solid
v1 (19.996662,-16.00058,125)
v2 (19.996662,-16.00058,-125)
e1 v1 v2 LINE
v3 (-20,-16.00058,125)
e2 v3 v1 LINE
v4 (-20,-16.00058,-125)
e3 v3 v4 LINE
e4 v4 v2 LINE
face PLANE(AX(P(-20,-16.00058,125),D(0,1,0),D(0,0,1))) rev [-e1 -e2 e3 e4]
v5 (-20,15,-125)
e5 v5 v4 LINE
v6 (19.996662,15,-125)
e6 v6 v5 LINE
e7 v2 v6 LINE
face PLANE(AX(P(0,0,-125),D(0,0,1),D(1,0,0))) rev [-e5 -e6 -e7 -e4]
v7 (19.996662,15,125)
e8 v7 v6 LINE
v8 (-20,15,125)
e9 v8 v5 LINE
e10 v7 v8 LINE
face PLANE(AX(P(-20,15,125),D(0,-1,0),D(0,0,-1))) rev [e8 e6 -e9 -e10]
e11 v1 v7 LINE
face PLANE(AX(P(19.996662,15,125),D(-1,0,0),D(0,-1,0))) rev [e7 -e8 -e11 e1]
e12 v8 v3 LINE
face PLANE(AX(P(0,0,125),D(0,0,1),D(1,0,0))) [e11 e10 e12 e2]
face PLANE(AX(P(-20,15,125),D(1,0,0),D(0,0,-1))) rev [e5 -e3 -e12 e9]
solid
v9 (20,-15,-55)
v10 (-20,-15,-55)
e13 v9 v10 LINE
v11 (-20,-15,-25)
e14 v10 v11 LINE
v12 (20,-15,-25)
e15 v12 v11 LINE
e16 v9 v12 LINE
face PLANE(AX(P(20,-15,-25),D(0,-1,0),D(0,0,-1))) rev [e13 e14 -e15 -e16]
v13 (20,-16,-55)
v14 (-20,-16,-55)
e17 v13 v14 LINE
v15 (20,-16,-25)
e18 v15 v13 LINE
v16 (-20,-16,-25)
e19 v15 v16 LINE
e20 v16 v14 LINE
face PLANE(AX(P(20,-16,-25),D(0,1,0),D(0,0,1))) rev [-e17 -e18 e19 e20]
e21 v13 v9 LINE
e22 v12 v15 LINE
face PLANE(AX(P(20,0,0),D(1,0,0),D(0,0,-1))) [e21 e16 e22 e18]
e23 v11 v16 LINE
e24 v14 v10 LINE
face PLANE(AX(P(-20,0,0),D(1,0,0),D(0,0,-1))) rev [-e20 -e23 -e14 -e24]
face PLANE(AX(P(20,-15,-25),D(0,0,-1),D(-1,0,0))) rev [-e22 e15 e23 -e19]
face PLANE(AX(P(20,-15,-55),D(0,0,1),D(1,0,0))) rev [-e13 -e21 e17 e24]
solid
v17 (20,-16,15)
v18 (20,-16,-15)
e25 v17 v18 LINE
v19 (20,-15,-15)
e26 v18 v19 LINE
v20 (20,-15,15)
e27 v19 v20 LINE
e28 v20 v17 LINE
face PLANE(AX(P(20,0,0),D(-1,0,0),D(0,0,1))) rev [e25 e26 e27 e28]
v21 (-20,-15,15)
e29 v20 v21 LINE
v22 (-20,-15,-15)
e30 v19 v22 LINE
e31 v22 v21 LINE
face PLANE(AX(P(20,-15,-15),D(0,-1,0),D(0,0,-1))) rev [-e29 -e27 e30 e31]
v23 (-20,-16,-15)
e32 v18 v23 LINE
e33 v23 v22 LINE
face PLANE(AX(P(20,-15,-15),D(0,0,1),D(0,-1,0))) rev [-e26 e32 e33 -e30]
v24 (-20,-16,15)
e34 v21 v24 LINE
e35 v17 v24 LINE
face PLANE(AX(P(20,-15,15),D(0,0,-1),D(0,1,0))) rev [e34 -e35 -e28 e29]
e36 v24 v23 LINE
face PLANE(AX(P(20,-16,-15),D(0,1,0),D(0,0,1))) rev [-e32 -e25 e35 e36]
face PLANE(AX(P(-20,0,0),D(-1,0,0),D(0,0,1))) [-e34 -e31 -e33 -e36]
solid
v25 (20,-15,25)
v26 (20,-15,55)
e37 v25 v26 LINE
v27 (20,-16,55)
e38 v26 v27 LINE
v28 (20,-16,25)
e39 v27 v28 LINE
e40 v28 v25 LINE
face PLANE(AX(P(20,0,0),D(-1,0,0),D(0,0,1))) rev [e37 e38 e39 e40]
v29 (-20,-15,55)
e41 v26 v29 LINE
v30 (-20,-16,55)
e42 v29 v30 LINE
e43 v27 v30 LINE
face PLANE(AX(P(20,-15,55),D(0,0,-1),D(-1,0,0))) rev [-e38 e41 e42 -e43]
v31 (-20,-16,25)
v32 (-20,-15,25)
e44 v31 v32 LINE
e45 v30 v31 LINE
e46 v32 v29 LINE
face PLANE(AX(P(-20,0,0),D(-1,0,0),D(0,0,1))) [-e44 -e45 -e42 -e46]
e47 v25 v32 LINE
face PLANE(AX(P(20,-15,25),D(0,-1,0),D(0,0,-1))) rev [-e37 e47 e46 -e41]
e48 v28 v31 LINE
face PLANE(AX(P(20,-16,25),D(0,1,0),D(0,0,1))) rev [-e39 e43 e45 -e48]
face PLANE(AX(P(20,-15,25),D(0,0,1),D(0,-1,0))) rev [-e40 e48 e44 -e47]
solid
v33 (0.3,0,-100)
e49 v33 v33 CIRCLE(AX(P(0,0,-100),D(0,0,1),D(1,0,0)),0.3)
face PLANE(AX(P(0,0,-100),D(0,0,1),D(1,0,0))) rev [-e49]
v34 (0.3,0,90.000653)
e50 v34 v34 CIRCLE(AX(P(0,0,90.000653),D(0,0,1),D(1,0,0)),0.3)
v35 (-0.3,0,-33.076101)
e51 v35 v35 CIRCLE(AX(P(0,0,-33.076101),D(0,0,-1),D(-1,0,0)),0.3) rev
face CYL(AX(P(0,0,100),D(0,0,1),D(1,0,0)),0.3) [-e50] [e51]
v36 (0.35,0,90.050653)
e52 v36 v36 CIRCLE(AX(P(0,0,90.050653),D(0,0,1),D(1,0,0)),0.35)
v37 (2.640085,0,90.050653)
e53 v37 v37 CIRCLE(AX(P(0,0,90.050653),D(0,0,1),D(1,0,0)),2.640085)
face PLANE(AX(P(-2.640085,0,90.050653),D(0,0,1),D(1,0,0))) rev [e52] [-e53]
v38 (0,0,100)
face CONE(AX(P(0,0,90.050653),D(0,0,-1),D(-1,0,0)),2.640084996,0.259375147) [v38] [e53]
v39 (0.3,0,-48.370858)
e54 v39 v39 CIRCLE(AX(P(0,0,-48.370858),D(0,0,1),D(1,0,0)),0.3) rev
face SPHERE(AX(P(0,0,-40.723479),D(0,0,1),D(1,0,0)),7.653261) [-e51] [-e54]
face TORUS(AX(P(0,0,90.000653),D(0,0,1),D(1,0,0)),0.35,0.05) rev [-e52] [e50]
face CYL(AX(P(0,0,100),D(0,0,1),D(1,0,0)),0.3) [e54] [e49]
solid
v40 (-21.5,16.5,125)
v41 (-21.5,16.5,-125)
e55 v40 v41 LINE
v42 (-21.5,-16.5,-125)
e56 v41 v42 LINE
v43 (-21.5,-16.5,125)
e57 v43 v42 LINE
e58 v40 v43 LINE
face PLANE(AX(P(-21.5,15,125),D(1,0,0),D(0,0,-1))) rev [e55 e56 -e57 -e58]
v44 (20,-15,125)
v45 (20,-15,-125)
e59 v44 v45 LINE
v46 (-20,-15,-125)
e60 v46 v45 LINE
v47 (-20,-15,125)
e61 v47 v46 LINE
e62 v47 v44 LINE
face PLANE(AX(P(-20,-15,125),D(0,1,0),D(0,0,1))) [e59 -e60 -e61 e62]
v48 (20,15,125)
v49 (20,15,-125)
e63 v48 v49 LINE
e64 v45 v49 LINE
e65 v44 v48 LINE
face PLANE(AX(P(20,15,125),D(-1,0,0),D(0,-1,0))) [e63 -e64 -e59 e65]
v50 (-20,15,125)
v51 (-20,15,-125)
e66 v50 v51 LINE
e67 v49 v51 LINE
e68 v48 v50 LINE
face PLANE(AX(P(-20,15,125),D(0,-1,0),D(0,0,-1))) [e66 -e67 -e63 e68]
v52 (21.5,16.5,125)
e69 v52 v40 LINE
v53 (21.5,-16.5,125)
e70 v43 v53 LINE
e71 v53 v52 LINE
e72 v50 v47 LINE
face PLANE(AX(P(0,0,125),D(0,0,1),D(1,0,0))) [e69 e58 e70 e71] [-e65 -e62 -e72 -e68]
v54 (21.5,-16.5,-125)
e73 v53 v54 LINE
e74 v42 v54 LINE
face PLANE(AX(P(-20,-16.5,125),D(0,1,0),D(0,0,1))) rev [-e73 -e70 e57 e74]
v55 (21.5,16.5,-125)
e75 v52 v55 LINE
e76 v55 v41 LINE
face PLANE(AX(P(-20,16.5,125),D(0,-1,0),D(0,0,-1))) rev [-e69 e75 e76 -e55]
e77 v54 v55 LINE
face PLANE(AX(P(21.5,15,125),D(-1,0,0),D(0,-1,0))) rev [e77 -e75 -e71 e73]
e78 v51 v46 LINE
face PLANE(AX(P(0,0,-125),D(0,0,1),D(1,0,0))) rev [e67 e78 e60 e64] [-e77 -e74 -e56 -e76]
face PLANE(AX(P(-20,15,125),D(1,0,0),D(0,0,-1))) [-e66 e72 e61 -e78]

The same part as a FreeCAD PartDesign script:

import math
import FreeCAD as App
import Part
import Sketcher
from FreeCAD import Vector
Q = App.Units.Quantity

doc = App.newDocument("Part")
body = doc.addObject("PartDesign::Body", "Body")

sketch1 = body.newObject("Sketcher::SketchObject", "Sketch")
sketch1.AttachmentSupport = (doc.getObject("XY_Plane"), [""])
sketch1.MapMode = "FlatFace"
sketch1.addGeometry([
    Part.LineSegment(Vector(-21.5, 16.5, 0), Vector(-21.5, -16.5, 0)),
    Part.LineSegment(Vector(-21.5, -16.5, 0), Vector(21.5, -16.5, 0)),
    Part.LineSegment(Vector(21.5, -16.5, 0), Vector(21.5, 16.5, 0)),
    Part.LineSegment(Vector(21.5, 16.5, 0), Vector(-21.5, 16.5, 0)),
    Part.LineSegment(Vector(20, -15, 0), Vector(-20, -15, 0)),
    Part.LineSegment(Vector(-20, -15, 0), Vector(-20, 15, 0)),
    Part.LineSegment(Vector(-20, 15, 0), Vector(20, 15, 0)),
    Part.LineSegment(Vector(20, 15, 0), Vector(20, -15, 0)),
], False)
sketch1.addConstraint([
    Sketcher.Constraint("Coincident", 0, 2, 1, 1),
    Sketcher.Constraint("Coincident", 1, 2, 2, 1),
    Sketcher.Constraint("Coincident", 2, 2, 3, 1),
    Sketcher.Constraint("Coincident", 3, 2, 0, 1),
    Sketcher.Constraint("Coincident", 4, 2, 5, 1),
    Sketcher.Constraint("Coincident", 5, 2, 6, 1),
    Sketcher.Constraint("Coincident", 6, 2, 7, 1),
    Sketcher.Constraint("Coincident", 7, 2, 4, 1),
    Sketcher.Constraint("Vertical", 0),
    Sketcher.Constraint("Horizontal", 1),
    Sketcher.Constraint("Vertical", 2),
    Sketcher.Constraint("Horizontal", 3),
    Sketcher.Constraint("Horizontal", 4),
    Sketcher.Constraint("Vertical", 5),
    Sketcher.Constraint("Horizontal", 6),
    Sketcher.Constraint("Vertical", 7),
    Sketcher.Constraint("Symmetric", 0, 2, 2, 2, -1, 1),
    Sketcher.Constraint("Symmetric", 4, 2, 6, 2, -1, 1),
    Sketcher.Constraint("DistanceX", 1, 1, 1, 2, Q("43 mm")),
    Sketcher.Constraint("DistanceX", 4, 2, 4, 1, Q("40 mm")),
    Sketcher.Constraint("DistanceY", 0, 2, 0, 1, Q("33 mm")),
    Sketcher.Constraint("DistanceY", 5, 1, 5, 2, Q("30 mm")),
])
pad1 = body.newObject("PartDesign::Pad", "Pad")
pad1.Profile = sketch1
pad1.Length = 250
pad1.Midplane = True
body2 = doc.addObject("PartDesign::Body", "Body001")

sketch2 = body2.newObject("Sketcher::SketchObject", "Sketch001")
sketch2.AttachmentSupport = (doc.getObject("YZ_Plane001"), [""])
sketch2.MapMode = "FlatFace"
sketch2.addGeometry([
    Part.LineSegment(Vector(-15, 15, 0), Vector(-16, 15, 0)),
    Part.LineSegment(Vector(-16, 15, 0), Vector(-16, -15, 0)),
    Part.LineSegment(Vector(-16, -15, 0), Vector(-15, -15, 0)),
    Part.LineSegment(Vector(-15, -15, 0), Vector(-15, 15, 0)),
], False)
sketch2.addConstraint([
    Sketcher.Constraint("Coincident", 0, 2, 1, 1),
    Sketcher.Constraint("Coincident", 1, 2, 2, 1),
    Sketcher.Constraint("Coincident", 2, 2, 3, 1),
    Sketcher.Constraint("Coincident", 3, 2, 0, 1),
    Sketcher.Constraint("Horizontal", 0),
    Sketcher.Constraint("Vertical", 1),
    Sketcher.Constraint("Horizontal", 2),
    Sketcher.Constraint("Vertical", 3),
    Sketcher.Constraint("DistanceX", 0, 2, 0, 1, Q("1 mm")),
    Sketcher.Constraint("DistanceY", 1, 2, 1, 1, Q("30 mm")),
    Sketcher.Constraint("DistanceX", 0, 2, -1, 1, Q("16 mm")),
    Sketcher.Constraint("DistanceY", -1, 1, 0, 2, Q("15 mm")),
])
pad2 = body2.newObject("PartDesign::Pad", "Pad001")
pad2.Profile = sketch2
pad2.Length = 40
pad2.Midplane = True
body3 = doc.addObject("PartDesign::Body", "Body002")

sketch3 = body3.newObject("Sketcher::SketchObject", "Sketch002")
sketch3.AttachmentSupport = (doc.getObject("YZ_Plane002"), [""])
sketch3.MapMode = "FlatFace"
sketch3.addGeometry([
    Part.LineSegment(Vector(-15, 55, 0), Vector(-16, 55, 0)),
    Part.LineSegment(Vector(-16, 55, 0), Vector(-16, 25, 0)),
    Part.LineSegment(Vector(-16, 25, 0), Vector(-15, 25, 0)),
    Part.LineSegment(Vector(-15, 25, 0), Vector(-15, 55, 0)),
], False)
sketch3.addConstraint([
    Sketcher.Constraint("Coincident", 0, 2, 1, 1),
    Sketcher.Constraint("Coincident", 1, 2, 2, 1),
    Sketcher.Constraint("Coincident", 2, 2, 3, 1),
    Sketcher.Constraint("Coincident", 3, 2, 0, 1),
    Sketcher.Constraint("Horizontal", 0),
    Sketcher.Constraint("Vertical", 1),
    Sketcher.Constraint("Horizontal", 2),
    Sketcher.Constraint("Vertical", 3),
    Sketcher.Constraint("DistanceX", 0, 2, 0, 1, Q("1 mm")),
    Sketcher.Constraint("DistanceY", 1, 2, 1, 1, Q("30 mm")),
    Sketcher.Constraint("DistanceX", 0, 2, -1, 1, Q("16 mm")),
    Sketcher.Constraint("DistanceY", -1, 1, 0, 2, Q("55 mm")),
])
pad3 = body3.newObject("PartDesign::Pad", "Pad002")
pad3.Profile = sketch3
pad3.Length = 40
pad3.Midplane = True
body4 = doc.addObject("PartDesign::Body", "Body003")

sketch4 = body4.newObject("Sketcher::SketchObject", "Sketch003")
sketch4.AttachmentSupport = (doc.getObject("YZ_Plane003"), [""])
sketch4.MapMode = "FlatFace"
sketch4.addGeometry([
    Part.LineSegment(Vector(-15, -25, 0), Vector(-16, -25, 0)),
    Part.LineSegment(Vector(-16, -25, 0), Vector(-16, -55, 0)),
    Part.LineSegment(Vector(-16, -55, 0), Vector(-15, -55, 0)),
    Part.LineSegment(Vector(-15, -55, 0), Vector(-15, -25, 0)),
], False)
sketch4.addConstraint([
    Sketcher.Constraint("Coincident", 0, 2, 1, 1),
    Sketcher.Constraint("Coincident", 1, 2, 2, 1),
    Sketcher.Constraint("Coincident", 2, 2, 3, 1),
    Sketcher.Constraint("Coincident", 3, 2, 0, 1),
    Sketcher.Constraint("Horizontal", 0),
    Sketcher.Constraint("Vertical", 1),
    Sketcher.Constraint("Horizontal", 2),
    Sketcher.Constraint("Vertical", 3),
    Sketcher.Constraint("DistanceX", 0, 2, 0, 1, Q("1 mm")),
    Sketcher.Constraint("DistanceY", 1, 2, 1, 1, Q("30 mm")),
    Sketcher.Constraint("DistanceX", 0, 2, -1, 1, Q("16 mm")),
    Sketcher.Constraint("DistanceY", 0, 2, -1, 1, Q("25 mm")),
])
pad4 = body4.newObject("PartDesign::Pad", "Pad003")
pad4.Profile = sketch4
pad4.Length = 40
pad4.Midplane = True
body5 = doc.addObject("PartDesign::Body", "Body004")

sketch5 = body5.newObject("Sketcher::SketchObject", "Sketch004")
sketch5.AttachmentSupport = (doc.getObject("XZ_Plane004"), [""])
sketch5.MapMode = "FlatFace"
sketch5.addGeometry([
    Part.LineSegment(Vector(-7.653261, -40.723479, 0), Vector(7.653261, -40.723479, 0)),
    Part.ArcOfCircle(Part.Circle(Vector(0, -40.723479, 0), Vector(0, 0, 1), 7.653261), math.radians(180), math.radians(360)),
], False)
sketch5.addGeometry(Part.LineSegment(Vector(-7.653261, -40.723479, 0), Vector(7.653261, -40.723479, 0)), True)
sketch5.addConstraint([
    Sketcher.Constraint("Coincident", 0, 1, 1, 1),
    Sketcher.Constraint("Coincident", 1, 2, 0, 2),
    Sketcher.Constraint("Horizontal", 0),
    Sketcher.Constraint("Horizontal", 2),
    Sketcher.Constraint("Coincident", 2, 1, 0, 1),
    Sketcher.Constraint("PointOnObject", 1, 3, -2),
    Sketcher.Constraint("Horizontal", 1, 3, 0, 1),
    Sketcher.Constraint("Equal", 0, 2),
    Sketcher.Constraint("Radius", 1, Q("7.653261 mm")),
    Sketcher.Constraint("DistanceY", 1, 3, -1, 1, Q("40.723479 mm")),
])
revolution = body5.newObject("PartDesign::Revolution", "Revolution")
revolution.Profile = sketch5
revolution.ReferenceAxis = (sketch5, ["Axis0"])
revolution.Angle = 360

sketch6 = body5.newObject("Sketcher::SketchObject", "Sketch005")
sketch6.AttachmentSupport = (doc.getObject("XZ_Plane004"), [""])
sketch6.MapMode = "FlatFace"
sketch6.addGeometry([
    Part.LineSegment(Vector(-2.640085, 90.050653, 0), Vector(0, 100, 0)),
    Part.LineSegment(Vector(0, 100, 0), Vector(0, -100, 0)),
    Part.LineSegment(Vector(0, -100, 0), Vector(-0.3, -100, 0)),
    Part.LineSegment(Vector(-0.3, -100, 0), Vector(-0.3, 90.000653, 0)),
    Part.ArcOfCircle(Part.Circle(Vector(-0.35, 90.000653, 0), Vector(0, 0, 1), 0.05), math.radians(0), math.radians(90)),
    Part.LineSegment(Vector(-0.35, 90.050653, 0), Vector(-2.640085, 90.050653, 0)),
], False)
sketch6.addConstraint([
    Sketcher.Constraint("Coincident", 0, 2, 1, 1),
    Sketcher.Constraint("Coincident", 1, 2, 2, 1),
    Sketcher.Constraint("Coincident", 2, 2, 3, 1),
    Sketcher.Constraint("Tangent", 3, 2, 4, 1),
    Sketcher.Constraint("Tangent", 4, 2, 5, 1),
    Sketcher.Constraint("Coincident", 5, 2, 0, 1),
    Sketcher.Constraint("Vertical", 1),
    Sketcher.Constraint("Horizontal", 2),
    Sketcher.Constraint("Vertical", 3),
    Sketcher.Constraint("Horizontal", 5),
    Sketcher.Constraint("Symmetric", 0, 2, 1, 2, -1, 1),
    Sketcher.Constraint("DistanceY", 1, 2, 1, 1, Q("200 mm")),
    Sketcher.Constraint("Radius", 4, Q("0.05 mm")),
    Sketcher.Constraint("DistanceX", 2, 2, 2, 1, Q("0.3 mm")),
    Sketcher.Constraint("DistanceX", 5, 2, 5, 1, Q("2.290085 mm")),
    Sketcher.Constraint("DistanceY", 3, 1, 3, 2, Q("190.000653 mm")),
])
revolution2 = body5.newObject("PartDesign::Revolution", "Revolution001")
revolution2.Profile = sketch6
revolution2.ReferenceAxis = (sketch6, ["V_Axis"])
revolution2.Angle = 360
body6 = doc.addObject("PartDesign::Body", "Body005")

sketch7 = body6.newObject("Sketcher::SketchObject", "Sketch006")
sketch7.AttachmentSupport = (doc.getObject("XY_Plane005"), [""])
sketch7.MapMode = "FlatFace"
sketch7.addGeometry([
    Part.LineSegment(Vector(-20, 15, 0), Vector(-20, -16.00058, 0)),
    Part.LineSegment(Vector(-20, -16.00058, 0), Vector(19.996662, -16.00058, 0)),
    Part.LineSegment(Vector(19.996662, -16.00058, 0), Vector(19.996662, 15, 0)),
    Part.LineSegment(Vector(19.996662, 15, 0), Vector(-20, 15, 0)),
], False)
sketch7.addConstraint([
    Sketcher.Constraint("Coincident", 0, 2, 1, 1),
    Sketcher.Constraint("Coincident", 1, 2, 2, 1),
    Sketcher.Constraint("Coincident", 2, 2, 3, 1),
    Sketcher.Constraint("Coincident", 3, 2, 0, 1),
    Sketcher.Constraint("Vertical", 0),
    Sketcher.Constraint("Horizontal", 1),
    Sketcher.Constraint("Vertical", 2),
    Sketcher.Constraint("Horizontal", 3),
    Sketcher.Constraint("DistanceX", 0, 2, -1, 1, Q("20 mm")),
    Sketcher.Constraint("DistanceY", -1, 1, 2, 2, Q("15 mm")),
    Sketcher.Constraint("DistanceX", 1, 1, 1, 2, Q("39.996662 mm")),
    Sketcher.Constraint("DistanceY", 0, 2, 0, 1, Q("31.00058 mm")),
])
pad5 = body6.newObject("PartDesign::Pad", "Pad004")
pad5.Profile = sketch7
pad5.Length = 250
pad5.Midplane = True

doc.recompute()
